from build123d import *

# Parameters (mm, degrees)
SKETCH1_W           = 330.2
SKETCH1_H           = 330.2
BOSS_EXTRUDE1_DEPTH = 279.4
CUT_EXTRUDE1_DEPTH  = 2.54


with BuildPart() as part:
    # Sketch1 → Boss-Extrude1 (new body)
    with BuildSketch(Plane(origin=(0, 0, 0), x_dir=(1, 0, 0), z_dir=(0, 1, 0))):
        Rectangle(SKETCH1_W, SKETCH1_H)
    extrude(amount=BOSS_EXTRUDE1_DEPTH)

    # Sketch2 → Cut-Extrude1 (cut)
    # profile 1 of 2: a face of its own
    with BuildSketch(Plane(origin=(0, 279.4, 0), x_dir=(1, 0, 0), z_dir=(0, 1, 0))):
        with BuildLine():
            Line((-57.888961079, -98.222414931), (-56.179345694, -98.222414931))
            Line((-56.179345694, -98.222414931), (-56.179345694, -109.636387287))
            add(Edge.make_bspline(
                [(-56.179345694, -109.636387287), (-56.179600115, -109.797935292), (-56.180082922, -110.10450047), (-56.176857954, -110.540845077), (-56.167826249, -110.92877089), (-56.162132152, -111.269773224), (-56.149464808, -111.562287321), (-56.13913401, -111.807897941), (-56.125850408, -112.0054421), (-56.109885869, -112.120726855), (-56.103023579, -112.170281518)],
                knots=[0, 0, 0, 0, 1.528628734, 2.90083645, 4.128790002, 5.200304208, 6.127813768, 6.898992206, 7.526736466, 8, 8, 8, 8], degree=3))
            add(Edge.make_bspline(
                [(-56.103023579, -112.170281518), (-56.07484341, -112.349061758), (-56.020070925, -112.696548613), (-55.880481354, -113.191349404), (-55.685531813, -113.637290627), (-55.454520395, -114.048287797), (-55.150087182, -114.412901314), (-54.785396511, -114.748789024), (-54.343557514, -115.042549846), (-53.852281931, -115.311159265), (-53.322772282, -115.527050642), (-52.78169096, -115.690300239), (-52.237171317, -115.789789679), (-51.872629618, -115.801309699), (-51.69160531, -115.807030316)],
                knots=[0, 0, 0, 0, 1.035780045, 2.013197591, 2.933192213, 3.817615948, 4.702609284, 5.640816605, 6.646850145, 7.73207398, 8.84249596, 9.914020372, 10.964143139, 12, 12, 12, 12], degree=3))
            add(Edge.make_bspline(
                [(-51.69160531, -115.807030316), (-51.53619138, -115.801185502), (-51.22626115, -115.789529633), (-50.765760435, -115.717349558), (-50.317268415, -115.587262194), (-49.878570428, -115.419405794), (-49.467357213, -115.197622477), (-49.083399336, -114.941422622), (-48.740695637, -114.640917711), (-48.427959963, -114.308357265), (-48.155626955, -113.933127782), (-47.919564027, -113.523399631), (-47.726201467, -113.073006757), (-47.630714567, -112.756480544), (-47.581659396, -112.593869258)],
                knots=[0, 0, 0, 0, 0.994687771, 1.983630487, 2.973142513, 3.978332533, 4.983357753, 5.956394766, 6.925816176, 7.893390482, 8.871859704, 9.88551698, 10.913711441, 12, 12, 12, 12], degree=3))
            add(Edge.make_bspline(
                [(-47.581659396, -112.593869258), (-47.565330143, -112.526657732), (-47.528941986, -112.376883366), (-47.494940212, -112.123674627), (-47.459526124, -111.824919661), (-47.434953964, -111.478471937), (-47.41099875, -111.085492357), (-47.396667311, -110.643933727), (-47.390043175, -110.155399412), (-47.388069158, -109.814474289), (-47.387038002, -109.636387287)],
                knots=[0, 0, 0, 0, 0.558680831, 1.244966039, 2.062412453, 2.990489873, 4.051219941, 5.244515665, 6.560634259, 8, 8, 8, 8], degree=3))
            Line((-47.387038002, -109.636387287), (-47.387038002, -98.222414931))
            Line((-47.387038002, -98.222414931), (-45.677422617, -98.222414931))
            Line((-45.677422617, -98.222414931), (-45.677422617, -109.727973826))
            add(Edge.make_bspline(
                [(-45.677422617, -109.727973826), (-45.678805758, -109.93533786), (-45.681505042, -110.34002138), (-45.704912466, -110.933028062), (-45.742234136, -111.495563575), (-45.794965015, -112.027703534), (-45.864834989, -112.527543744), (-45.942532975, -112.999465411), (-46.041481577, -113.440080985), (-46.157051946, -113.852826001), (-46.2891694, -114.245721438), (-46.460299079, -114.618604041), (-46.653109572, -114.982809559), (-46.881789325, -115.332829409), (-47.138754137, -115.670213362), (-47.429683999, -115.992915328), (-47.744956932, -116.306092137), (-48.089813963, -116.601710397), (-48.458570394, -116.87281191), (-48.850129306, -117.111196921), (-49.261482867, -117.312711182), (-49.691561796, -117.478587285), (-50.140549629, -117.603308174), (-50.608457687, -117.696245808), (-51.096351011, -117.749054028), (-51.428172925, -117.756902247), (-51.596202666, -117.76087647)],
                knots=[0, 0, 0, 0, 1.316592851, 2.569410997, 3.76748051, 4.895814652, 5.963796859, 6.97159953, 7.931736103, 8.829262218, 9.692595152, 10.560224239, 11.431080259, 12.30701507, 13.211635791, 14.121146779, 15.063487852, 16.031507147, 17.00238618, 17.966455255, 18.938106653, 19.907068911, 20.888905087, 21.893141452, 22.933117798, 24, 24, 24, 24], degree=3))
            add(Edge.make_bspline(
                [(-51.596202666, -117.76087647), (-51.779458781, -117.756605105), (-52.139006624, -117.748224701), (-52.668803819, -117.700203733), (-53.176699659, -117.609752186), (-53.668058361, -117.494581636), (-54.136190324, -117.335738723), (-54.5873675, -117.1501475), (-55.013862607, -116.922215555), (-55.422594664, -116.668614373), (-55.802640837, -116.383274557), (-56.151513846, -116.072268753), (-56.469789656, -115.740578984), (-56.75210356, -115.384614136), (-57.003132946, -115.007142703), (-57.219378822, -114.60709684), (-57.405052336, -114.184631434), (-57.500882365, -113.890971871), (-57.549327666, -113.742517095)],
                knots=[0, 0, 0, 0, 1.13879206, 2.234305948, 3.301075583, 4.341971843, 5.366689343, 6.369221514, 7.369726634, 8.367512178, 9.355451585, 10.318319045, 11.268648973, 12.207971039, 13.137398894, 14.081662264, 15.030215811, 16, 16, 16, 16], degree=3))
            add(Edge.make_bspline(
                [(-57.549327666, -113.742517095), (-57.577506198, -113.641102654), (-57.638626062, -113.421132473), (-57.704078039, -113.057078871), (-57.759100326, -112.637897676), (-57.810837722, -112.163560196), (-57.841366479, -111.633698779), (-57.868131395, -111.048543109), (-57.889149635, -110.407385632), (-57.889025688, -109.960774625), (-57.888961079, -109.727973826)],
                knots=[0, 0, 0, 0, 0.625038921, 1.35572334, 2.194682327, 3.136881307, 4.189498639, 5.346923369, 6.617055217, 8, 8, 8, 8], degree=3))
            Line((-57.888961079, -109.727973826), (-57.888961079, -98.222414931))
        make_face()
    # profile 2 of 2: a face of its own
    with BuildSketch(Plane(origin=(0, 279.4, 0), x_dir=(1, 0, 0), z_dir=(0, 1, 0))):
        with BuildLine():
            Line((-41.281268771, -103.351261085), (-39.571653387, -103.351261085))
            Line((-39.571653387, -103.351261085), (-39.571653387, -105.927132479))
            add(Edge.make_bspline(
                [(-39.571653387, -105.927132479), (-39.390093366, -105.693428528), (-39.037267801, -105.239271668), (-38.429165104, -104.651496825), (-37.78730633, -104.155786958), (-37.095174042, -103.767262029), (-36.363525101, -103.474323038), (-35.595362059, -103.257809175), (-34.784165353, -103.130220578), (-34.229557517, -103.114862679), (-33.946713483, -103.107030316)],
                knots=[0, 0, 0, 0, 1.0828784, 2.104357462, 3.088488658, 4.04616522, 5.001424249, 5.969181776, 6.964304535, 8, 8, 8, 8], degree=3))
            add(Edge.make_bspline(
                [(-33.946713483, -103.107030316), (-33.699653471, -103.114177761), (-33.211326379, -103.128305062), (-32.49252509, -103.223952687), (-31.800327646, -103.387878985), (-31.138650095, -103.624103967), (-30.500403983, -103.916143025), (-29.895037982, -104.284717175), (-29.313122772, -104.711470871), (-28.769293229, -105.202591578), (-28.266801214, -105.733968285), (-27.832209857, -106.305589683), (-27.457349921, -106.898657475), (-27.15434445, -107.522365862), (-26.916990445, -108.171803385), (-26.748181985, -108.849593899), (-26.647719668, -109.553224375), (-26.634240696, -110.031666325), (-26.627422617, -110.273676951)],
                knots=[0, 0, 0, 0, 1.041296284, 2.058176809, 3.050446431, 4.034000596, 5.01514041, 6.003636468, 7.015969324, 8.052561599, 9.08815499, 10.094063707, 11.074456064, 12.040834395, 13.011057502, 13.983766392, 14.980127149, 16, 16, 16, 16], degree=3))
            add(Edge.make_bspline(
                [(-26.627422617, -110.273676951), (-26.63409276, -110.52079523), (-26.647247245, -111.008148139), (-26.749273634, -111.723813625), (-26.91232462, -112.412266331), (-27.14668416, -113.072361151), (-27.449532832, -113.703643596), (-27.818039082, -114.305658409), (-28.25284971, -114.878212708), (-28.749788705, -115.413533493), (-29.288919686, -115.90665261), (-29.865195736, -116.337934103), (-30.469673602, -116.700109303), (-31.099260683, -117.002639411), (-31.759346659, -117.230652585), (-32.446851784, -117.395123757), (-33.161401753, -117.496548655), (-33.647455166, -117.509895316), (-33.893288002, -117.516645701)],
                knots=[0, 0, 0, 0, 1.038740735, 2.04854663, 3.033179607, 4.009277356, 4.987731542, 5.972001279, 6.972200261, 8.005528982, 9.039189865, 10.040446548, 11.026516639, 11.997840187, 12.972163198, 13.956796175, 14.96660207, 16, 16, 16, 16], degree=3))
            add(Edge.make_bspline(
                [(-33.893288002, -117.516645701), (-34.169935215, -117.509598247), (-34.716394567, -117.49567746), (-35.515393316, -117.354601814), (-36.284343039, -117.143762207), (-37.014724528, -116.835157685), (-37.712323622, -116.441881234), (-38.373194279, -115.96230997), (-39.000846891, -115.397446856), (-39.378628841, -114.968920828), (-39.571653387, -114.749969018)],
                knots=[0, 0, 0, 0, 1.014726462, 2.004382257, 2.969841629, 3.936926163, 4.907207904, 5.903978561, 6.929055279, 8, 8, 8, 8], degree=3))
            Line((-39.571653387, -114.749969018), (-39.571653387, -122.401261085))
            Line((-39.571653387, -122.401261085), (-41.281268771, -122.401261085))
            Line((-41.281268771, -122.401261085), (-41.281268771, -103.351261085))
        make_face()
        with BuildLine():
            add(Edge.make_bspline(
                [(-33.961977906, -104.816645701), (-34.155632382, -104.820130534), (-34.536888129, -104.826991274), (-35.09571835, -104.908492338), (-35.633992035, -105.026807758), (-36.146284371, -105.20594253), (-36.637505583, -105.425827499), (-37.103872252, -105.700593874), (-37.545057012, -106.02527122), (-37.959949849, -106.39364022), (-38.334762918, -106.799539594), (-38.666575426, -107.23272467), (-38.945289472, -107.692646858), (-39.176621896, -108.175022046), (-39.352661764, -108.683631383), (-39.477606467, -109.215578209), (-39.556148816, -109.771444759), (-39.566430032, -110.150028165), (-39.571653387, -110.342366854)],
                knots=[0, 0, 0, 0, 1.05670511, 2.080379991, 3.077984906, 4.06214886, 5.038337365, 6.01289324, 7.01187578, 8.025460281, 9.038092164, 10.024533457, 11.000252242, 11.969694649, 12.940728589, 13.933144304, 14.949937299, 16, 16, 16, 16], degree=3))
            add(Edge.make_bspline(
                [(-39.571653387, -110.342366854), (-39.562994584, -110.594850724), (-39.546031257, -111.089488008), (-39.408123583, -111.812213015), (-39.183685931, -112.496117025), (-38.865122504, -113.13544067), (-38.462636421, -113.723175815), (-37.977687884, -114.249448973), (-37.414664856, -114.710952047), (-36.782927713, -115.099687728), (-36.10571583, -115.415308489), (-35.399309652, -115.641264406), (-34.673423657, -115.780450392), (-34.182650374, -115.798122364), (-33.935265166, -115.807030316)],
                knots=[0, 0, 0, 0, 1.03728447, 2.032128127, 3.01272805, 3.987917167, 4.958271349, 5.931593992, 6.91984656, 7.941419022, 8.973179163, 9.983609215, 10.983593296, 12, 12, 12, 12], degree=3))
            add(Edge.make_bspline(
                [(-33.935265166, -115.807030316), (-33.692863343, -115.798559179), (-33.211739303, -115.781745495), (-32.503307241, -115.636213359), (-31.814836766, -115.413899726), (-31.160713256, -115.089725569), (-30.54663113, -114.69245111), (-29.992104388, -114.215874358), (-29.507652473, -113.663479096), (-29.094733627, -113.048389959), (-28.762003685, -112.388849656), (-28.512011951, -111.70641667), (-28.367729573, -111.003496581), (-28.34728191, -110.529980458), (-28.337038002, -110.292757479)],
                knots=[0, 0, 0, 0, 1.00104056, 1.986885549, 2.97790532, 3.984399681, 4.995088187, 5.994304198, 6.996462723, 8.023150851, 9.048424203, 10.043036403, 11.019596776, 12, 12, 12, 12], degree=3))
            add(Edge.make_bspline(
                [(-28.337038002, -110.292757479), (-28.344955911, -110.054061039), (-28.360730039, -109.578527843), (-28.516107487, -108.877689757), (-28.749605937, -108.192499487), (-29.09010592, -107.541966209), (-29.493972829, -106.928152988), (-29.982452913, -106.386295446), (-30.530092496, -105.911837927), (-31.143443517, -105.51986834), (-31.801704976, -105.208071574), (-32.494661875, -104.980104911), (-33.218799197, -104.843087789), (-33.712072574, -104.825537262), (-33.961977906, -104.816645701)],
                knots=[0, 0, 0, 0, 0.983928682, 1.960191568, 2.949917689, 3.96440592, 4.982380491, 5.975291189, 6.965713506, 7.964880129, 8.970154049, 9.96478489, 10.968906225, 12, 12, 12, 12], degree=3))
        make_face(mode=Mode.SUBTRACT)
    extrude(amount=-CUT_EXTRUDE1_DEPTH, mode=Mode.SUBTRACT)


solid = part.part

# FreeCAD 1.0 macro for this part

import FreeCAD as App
import Part
import Sketcher
from FreeCAD import Vector
Q = App.Units.Quantity

doc = App.newDocument("Part")
body = doc.addObject("PartDesign::Body", "Body")

# Sketch on XZ plane
sketch1 = doc.addObject("Sketcher::SketchObject", "Sketch")
body.addObject(sketch1)
sketch1.AttachmentSupport = (doc.XZ_Plane, [""])
sketch1.MapMode = "FlatFace"
sketch1.addGeometry([
    Part.LineSegment(Vector(-165.1, -165.1, 0), Vector(-165.1, 165.1, 0)),
    Part.LineSegment(Vector(-165.1, 165.1, 0), Vector(165.1, 165.1, 0)),
    Part.LineSegment(Vector(165.1, 165.1, 0), Vector(165.1, -165.1, 0)),
    Part.LineSegment(Vector(165.1, -165.1, 0), Vector(-165.1, -165.1, 0)),
], False)
sketch1.addConstraint([
    Sketcher.Constraint("Coincident", 0, 2, 1, 1),
    Sketcher.Constraint("Coincident", 1, 2, 2, 1),
    Sketcher.Constraint("Coincident", 2, 2, 3, 1),
    Sketcher.Constraint("Coincident", 3, 2, 0, 1),
    Sketcher.Constraint("Vertical", 0),
    Sketcher.Constraint("Horizontal", 1),
    Sketcher.Constraint("Vertical", 2),
    Sketcher.Constraint("Horizontal", 3),
    Sketcher.Constraint("Symmetric", 0, 2, 2, 2, -1, 1),
    Sketcher.Constraint("Equal", 3, 0),
    Sketcher.Constraint("DistanceX", 1, 1, 1, 2, Q("13 in")),
])
pad1 = doc.addObject("PartDesign::Pad", "Pad")
body.addObject(pad1)
pad1.Profile = sketch1
pad1.Length = Q("11 in")
pad1.Reversed = True

# Sketch on XZ plane
sketch2 = doc.addObject("Sketcher::SketchObject", "Sketch001")
body.addObject(sketch2)
sketch2.AttachmentSupport = (doc.XZ_Plane, [""])
sketch2.MapMode = "FlatFace"
sketch2.AttachmentOffset = App.Placement(Vector(0, 0, -11 * 25.4), App.Rotation())
sketch2.addGeometry([
    Part.LineSegment(Vector(-56.179346, 98.222415, 0), Vector(-57.888961, 98.222415, 0)),  # 0
    Part.LineSegment(Vector(-57.888961, 98.222415, 0), Vector(-57.888961, 109.727974, 0)),  # 1
    Part.BSplineCurve([Vector(-57.549328, 113.742517, 0), Vector(-57.577506, 113.641103, 0), Vector(-57.638626, 113.421132, 0), Vector(-57.704078, 113.057079, 0), Vector(-57.7591, 112.637898, 0), Vector(-57.810838, 112.16356, 0), Vector(-57.841366, 111.633699, 0), Vector(-57.868131, 111.048543, 0), Vector(-57.88915, 110.407386, 0), Vector(-57.889026, 109.960775, 0), Vector(-57.888961, 109.727974, 0)], [4, 1, 1, 1, 1, 1, 1, 1, 4], [0, 0.625038921, 1.35572334, 2.194682327, 3.136881307, 4.189498639, 5.346923369, 6.617055217, 8], False, 3, [1, 1, 1, 1, 1, 1, 1, 1, 1, 1, 1], False),  # 2
    Part.BSplineCurve([Vector(-51.596203, 117.760876, 0), Vector(-51.779459, 117.756605, 0), Vector(-52.139007, 117.748225, 0), Vector(-52.668804, 117.700204, 0), Vector(-53.1767, 117.609752, 0), Vector(-53.668058, 117.494582, 0), Vector(-54.13619, 117.335739, 0), Vector(-54.587367, 117.150148, 0), Vector(-55.013863, 116.922216, 0), Vector(-55.422595, 116.668614, 0), Vector(-55.802641, 116.383275, 0), Vector(-56.151514, 116.072269, 0), Vector(-56.46979, 115.740579, 0), Vector(-56.752104, 115.384614, 0), Vector(-57.003133, 115.007143, 0), Vector(-57.219379, 114.607097, 0), Vector(-57.405052, 114.184631, 0), Vector(-57.500882, 113.890972, 0), Vector(-57.549328, 113.742517, 0)], [4, 1, 1, 1, 1, 1, 1, 1, 1, 1, 1, 1, 1, 1, 1, 1, 4], [0, 1.13879206, 2.234305948, 3.301075583, 4.341971843, 5.366689343, 6.369221514, 7.369726634, 8.367512178, 9.355451585, 10.318319045, 11.268648973, 12.207971039, 13.137398894, 14.081662264, 15.030215811, 16], False, 3, [1, 1, 1, 1, 1, 1, 1, 1, 1, 1, 1, 1, 1, 1, 1, 1, 1, 1, 1], False),  # 3
    Part.BSplineCurve([Vector(-45.677423, 109.727974, 0), Vector(-45.678806, 109.935338, 0), Vector(-45.681505, 110.340021, 0), Vector(-45.704912, 110.933028, 0), Vector(-45.742234, 111.495564, 0), Vector(-45.794965, 112.027704, 0), Vector(-45.864835, 112.527544, 0), Vector(-45.942533, 112.999465, 0), Vector(-46.041482, 113.440081, 0), Vector(-46.157052, 113.852826, 0), Vector(-46.289169, 114.245721, 0), Vector(-46.460299, 114.618604, 0), Vector(-46.65311, 114.98281, 0), Vector(-46.881789, 115.332829, 0), Vector(-47.138754, 115.670213, 0), Vector(-47.429684, 115.992915, 0), Vector(-47.744957, 116.306092, 0), Vector(-48.089814, 116.60171, 0), Vector(-48.45857, 116.872812, 0), Vector(-48.850129, 117.111197, 0), Vector(-49.261483, 117.312711, 0), Vector(-49.691562, 117.478587, 0), Vector(-50.14055, 117.603308, 0), Vector(-50.608458, 117.696246, 0), Vector(-51.096351, 117.749054, 0), Vector(-51.428173, 117.756902, 0), Vector(-51.596203, 117.760876, 0)], [4, 1, 1, 1, 1, 1, 1, 1, 1, 1, 1, 1, 1, 1, 1, 1, 1, 1, 1, 1, 1, 1, 1, 1, 4], [0, 1.316592851, 2.569410997, 3.76748051, 4.895814652, 5.963796859, 6.97159953, 7.931736103, 8.829262218, 9.692595152, 10.560224239, 11.431080259, 12.30701507, 13.211635791, 14.121146779, 15.063487852, 16.031507147, 17.00238618, 17.966455255, 18.938106653, 19.907068911, 20.888905087, 21.893141452, 22.933117798, 24], False, 3, [1, 1, 1, 1, 1, 1, 1, 1, 1, 1, 1, 1, 1, 1, 1, 1, 1, 1, 1, 1, 1, 1, 1, 1, 1, 1, 1], False),  # 4
    Part.LineSegment(Vector(-45.677423, 109.727974, 0), Vector(-45.677423, 98.222415, 0)),  # 5
    Part.LineSegment(Vector(-45.677423, 98.222415, 0), Vector(-47.387038, 98.222415, 0)),  # 6
    Part.LineSegment(Vector(-47.387038, 98.222415, 0), Vector(-47.387038, 109.636387, 0)),  # 7
    Part.BSplineCurve([Vector(-47.581659, 112.593869, 0), Vector(-47.56533, 112.526658, 0), Vector(-47.528942, 112.376883, 0), Vector(-47.49494, 112.123675, 0), Vector(-47.459526, 111.82492, 0), Vector(-47.434954, 111.478472, 0), Vector(-47.410999, 111.085492, 0), Vector(-47.396667, 110.643934, 0), Vector(-47.390043, 110.155399, 0), Vector(-47.388069, 109.814474, 0), Vector(-47.387038, 109.636387, 0)], [4, 1, 1, 1, 1, 1, 1, 1, 4], [0, 0.558680831, 1.244966039, 2.062412453, 2.990489873, 4.051219941, 5.244515665, 6.560634259, 8], False, 3, [1, 1, 1, 1, 1, 1, 1, 1, 1, 1, 1], False),  # 8
    Part.BSplineCurve([Vector(-51.691605, 115.80703, 0), Vector(-51.536191, 115.801186, 0), Vector(-51.226261, 115.78953, 0), Vector(-50.76576, 115.71735, 0), Vector(-50.317268, 115.587262, 0), Vector(-49.87857, 115.419406, 0), Vector(-49.467357, 115.197622, 0), Vector(-49.083399, 114.941423, 0), Vector(-48.740696, 114.640918, 0), Vector(-48.42796, 114.308357, 0), Vector(-48.155627, 113.933128, 0), Vector(-47.919564, 113.5234, 0), Vector(-47.726201, 113.073007, 0), Vector(-47.630715, 112.756481, 0), Vector(-47.581659, 112.593869, 0)], [4, 1, 1, 1, 1, 1, 1, 1, 1, 1, 1, 1, 4], [0, 0.994687771, 1.983630487, 2.973142513, 3.978332533, 4.983357753, 5.956394766, 6.925816176, 7.893390482, 8.871859704, 9.88551698, 10.913711441, 12], False, 3, [1, 1, 1, 1, 1, 1, 1, 1, 1, 1, 1, 1, 1, 1, 1], False),  # 9
    Part.BSplineCurve([Vector(-56.103024, 112.170282, 0), Vector(-56.074843, 112.349062, 0), Vector(-56.020071, 112.696549, 0), Vector(-55.880481, 113.191349, 0), Vector(-55.685532, 113.637291, 0), Vector(-55.45452, 114.048288, 0), Vector(-55.150087, 114.412901, 0), Vector(-54.785397, 114.748789, 0), Vector(-54.343558, 115.04255, 0), Vector(-53.852282, 115.311159, 0), Vector(-53.322772, 115.527051, 0), Vector(-52.781691, 115.6903, 0), Vector(-52.237171, 115.78979, 0), Vector(-51.87263, 115.80131, 0), Vector(-51.691605, 115.80703, 0)], [4, 1, 1, 1, 1, 1, 1, 1, 1, 1, 1, 1, 4], [0, 1.035780045, 2.013197591, 2.933192213, 3.817615948, 4.702609284, 5.640816605, 6.646850145, 7.73207398, 8.84249596, 9.914020372, 10.964143139, 12], False, 3, [1, 1, 1, 1, 1, 1, 1, 1, 1, 1, 1, 1, 1, 1, 1], False),  # 10
    Part.BSplineCurve([Vector(-56.179346, 109.636387, 0), Vector(-56.1796, 109.797935, 0), Vector(-56.180083, 110.1045, 0), Vector(-56.176858, 110.540845, 0), Vector(-56.167826, 110.928771, 0), Vector(-56.162132, 111.269773, 0), Vector(-56.149465, 111.562287, 0), Vector(-56.139134, 111.807898, 0), Vector(-56.12585, 112.005442, 0), Vector(-56.109886, 112.120727, 0), Vector(-56.103024, 112.170282, 0)], [4, 1, 1, 1, 1, 1, 1, 1, 4], [0, 1.528628734, 2.90083645, 4.128790002, 5.200304208, 6.127813768, 6.898992206, 7.526736466, 8], False, 3, [1, 1, 1, 1, 1, 1, 1, 1, 1, 1, 1], False),  # 11
    Part.LineSegment(Vector(-56.179346, 109.636387, 0), Vector(-56.179346, 98.222415, 0)),  # 12
    Part.LineSegment(Vector(-39.571653, 103.351261, 0), Vector(-41.281269, 103.351261, 0)),  # 13
    Part.LineSegment(Vector(-41.281269, 103.351261, 0), Vector(-41.281269, 122.401261, 0)),  # 14
    Part.LineSegment(Vector(-41.281269, 122.401261, 0), Vector(-39.571653, 122.401261, 0)),  # 15
    Part.LineSegment(Vector(-39.571653, 122.401261, 0), Vector(-39.571653, 114.749969, 0)),  # 16
    Part.BSplineCurve([Vector(-33.893288, 117.516646, 0), Vector(-34.169935, 117.509598, 0), Vector(-34.716395, 117.495677, 0), Vector(-35.515393, 117.354602, 0), Vector(-36.284343, 117.143762, 0), Vector(-37.014725, 116.835158, 0), Vector(-37.712324, 116.441881, 0), Vector(-38.373194, 115.96231, 0), Vector(-39.000847, 115.397447, 0), Vector(-39.378629, 114.968921, 0), Vector(-39.571653, 114.749969, 0)], [4, 1, 1, 1, 1, 1, 1, 1, 4], [0, 1.014726462, 2.004382257, 2.969841629, 3.936926163, 4.907207904, 5.903978561, 6.929055279, 8], False, 3, [1, 1, 1, 1, 1, 1, 1, 1, 1, 1, 1], False),  # 17
    Part.BSplineCurve([Vector(-26.627423, 110.273677, 0), Vector(-26.634093, 110.520795, 0), Vector(-26.647247, 111.008148, 0), Vector(-26.749274, 111.723814, 0), Vector(-26.912325, 112.412266, 0), Vector(-27.146684, 113.072361, 0), Vector(-27.449533, 113.703644, 0), Vector(-27.818039, 114.305658, 0), Vector(-28.25285, 114.878213, 0), Vector(-28.749789, 115.413533, 0), Vector(-29.28892, 115.906653, 0), Vector(-29.865196, 116.337934, 0), Vector(-30.469674, 116.700109, 0), Vector(-31.099261, 117.002639, 0), Vector(-31.759347, 117.230653, 0), Vector(-32.446852, 117.395124, 0), Vector(-33.161402, 117.496549, 0), Vector(-33.647455, 117.509895, 0), Vector(-33.893288, 117.516646, 0)], [4, 1, 1, 1, 1, 1, 1, 1, 1, 1, 1, 1, 1, 1, 1, 1, 4], [0, 1.038740735, 2.04854663, 3.033179607, 4.009277356, 4.987731542, 5.972001279, 6.972200261, 8.005528982, 9.039189865, 10.040446548, 11.026516639, 11.997840187, 12.972163198, 13.956796175, 14.96660207, 16], False, 3, [1, 1, 1, 1, 1, 1, 1, 1, 1, 1, 1, 1, 1, 1, 1, 1, 1, 1, 1], False),  # 18
    Part.BSplineCurve([Vector(-33.946713, 103.10703, 0), Vector(-33.699653, 103.114178, 0), Vector(-33.211326, 103.128305, 0), Vector(-32.492525, 103.223953, 0), Vector(-31.800328, 103.387879, 0), Vector(-31.13865, 103.624104, 0), Vector(-30.500404, 103.916143, 0), Vector(-29.895038, 104.284717, 0), Vector(-29.313123, 104.711471, 0), Vector(-28.769293, 105.202592, 0), Vector(-28.266801, 105.733968, 0), Vector(-27.83221, 106.30559, 0), Vector(-27.45735, 106.898657, 0), Vector(-27.154344, 107.522366, 0), Vector(-26.91699, 108.171803, 0), Vector(-26.748182, 108.849594, 0), Vector(-26.64772, 109.553224, 0), Vector(-26.634241, 110.031666, 0), Vector(-26.627423, 110.273677, 0)], [4, 1, 1, 1, 1, 1, 1, 1, 1, 1, 1, 1, 1, 1, 1, 1, 4], [0, 1.041296284, 2.058176809, 3.050446431, 4.034000596, 5.01514041, 6.003636468, 7.015969324, 8.052561599, 9.08815499, 10.094063707, 11.074456064, 12.040834395, 13.011057502, 13.983766392, 14.980127149, 16], False, 3, [1, 1, 1, 1, 1, 1, 1, 1, 1, 1, 1, 1, 1, 1, 1, 1, 1, 1, 1], False),  # 19
    Part.BSplineCurve([Vector(-39.571653, 105.927132, 0), Vector(-39.390093, 105.693429, 0), Vector(-39.037268, 105.239272, 0), Vector(-38.429165, 104.651497, 0), Vector(-37.787306, 104.155787, 0), Vector(-37.095174, 103.767262, 0), Vector(-36.363525, 103.474323, 0), Vector(-35.595362, 103.257809, 0), Vector(-34.784165, 103.130221, 0), Vector(-34.229558, 103.114863, 0), Vector(-33.946713, 103.10703, 0)], [4, 1, 1, 1, 1, 1, 1, 1, 4], [0, 1.0828784, 2.104357462, 3.088488658, 4.04616522, 5.001424249, 5.969181776, 6.964304535, 8], False, 3, [1, 1, 1, 1, 1, 1, 1, 1, 1, 1, 1], False),  # 20
    Part.LineSegment(Vector(-39.571653, 105.927132, 0), Vector(-39.571653, 103.351261, 0)),  # 21
    Part.BSplineCurve([Vector(-28.337038, 110.292757, 0), Vector(-28.344956, 110.054061, 0), Vector(-28.36073, 109.578528, 0), Vector(-28.516107, 108.87769, 0), Vector(-28.749606, 108.192499, 0), Vector(-29.090106, 107.541966, 0), Vector(-29.493973, 106.928153, 0), Vector(-29.982453, 106.386295, 0), Vector(-30.530092, 105.911838, 0), Vector(-31.143444, 105.519868, 0), Vector(-31.801705, 105.208072, 0), Vector(-32.494662, 104.980105, 0), Vector(-33.218799, 104.843088, 0), Vector(-33.712073, 104.825537, 0), Vector(-33.961978, 104.816646, 0)], [4, 1, 1, 1, 1, 1, 1, 1, 1, 1, 1, 1, 4], [0, 0.983928682, 1.960191568, 2.949917689, 3.96440592, 4.982380491, 5.975291189, 6.965713506, 7.964880129, 8.970154049, 9.96478489, 10.968906225, 12], False, 3, [1, 1, 1, 1, 1, 1, 1, 1, 1, 1, 1, 1, 1, 1, 1], False),  # 22
    Part.BSplineCurve([Vector(-33.935265, 115.80703, 0), Vector(-33.692863, 115.798559, 0), Vector(-33.211739, 115.781745, 0), Vector(-32.503307, 115.636213, 0), Vector(-31.814837, 115.4139, 0), Vector(-31.160713, 115.089726, 0), Vector(-30.546631, 114.692451, 0), Vector(-29.992104, 114.215874, 0), Vector(-29.507652, 113.663479, 0), Vector(-29.094734, 113.04839, 0), Vector(-28.762004, 112.38885, 0), Vector(-28.512012, 111.706417, 0), Vector(-28.36773, 111.003497, 0), Vector(-28.347282, 110.52998, 0), Vector(-28.337038, 110.292757, 0)], [4, 1, 1, 1, 1, 1, 1, 1, 1, 1, 1, 1, 4], [0, 1.00104056, 1.986885549, 2.97790532, 3.984399681, 4.995088187, 5.994304198, 6.996462723, 8.023150851, 9.048424203, 10.043036403, 11.019596776, 12], False, 3, [1, 1, 1, 1, 1, 1, 1, 1, 1, 1, 1, 1, 1, 1, 1], False),  # 23
    Part.BSplineCurve([Vector(-39.571653, 110.342367, 0), Vector(-39.562995, 110.594851, 0), Vector(-39.546031, 111.089488, 0), Vector(-39.408124, 111.812213, 0), Vector(-39.183686, 112.496117, 0), Vector(-38.865123, 113.135441, 0), Vector(-38.462636, 113.723176, 0), Vector(-37.977688, 114.249449, 0), Vector(-37.414665, 114.710952, 0), Vector(-36.782928, 115.099688, 0), Vector(-36.105716, 115.415308, 0), Vector(-35.39931, 115.641264, 0), Vector(-34.673424, 115.78045, 0), Vector(-34.18265, 115.798122, 0), Vector(-33.935265, 115.80703, 0)], [4, 1, 1, 1, 1, 1, 1, 1, 1, 1, 1, 1, 4], [0, 1.03728447, 2.032128127, 3.01272805, 3.987917167, 4.958271349, 5.931593992, 6.91984656, 7.941419022, 8.973179163, 9.983609215, 10.983593296, 12], False, 3, [1, 1, 1, 1, 1, 1, 1, 1, 1, 1, 1, 1, 1, 1, 1], False),  # 24
    Part.BSplineCurve([Vector(-33.961978, 104.816646, 0), Vector(-34.155632, 104.820131, 0), Vector(-34.536888, 104.826991, 0), Vector(-35.095718, 104.908492, 0), Vector(-35.633992, 105.026808, 0), Vector(-36.146284, 105.205943, 0), Vector(-36.637506, 105.425827, 0), Vector(-37.103872, 105.700594, 0), Vector(-37.545057, 106.025271, 0), Vector(-37.95995, 106.39364, 0), Vector(-38.334763, 106.79954, 0), Vector(-38.666575, 107.232725, 0), Vector(-38.945289, 107.692647, 0), Vector(-39.176622, 108.175022, 0), Vector(-39.352662, 108.683631, 0), Vector(-39.477606, 109.215578, 0), Vector(-39.556149, 109.771445, 0), Vector(-39.56643, 110.150028, 0), Vector(-39.571653, 110.342367, 0)], [4, 1, 1, 1, 1, 1, 1, 1, 1, 1, 1, 1, 1, 1, 1, 1, 4], [0, 1.05670511, 2.080379991, 3.077984906, 4.06214886, 5.038337365, 6.01289324, 7.01187578, 8.025460281, 9.038092164, 10.024533457, 11.000252242, 11.969694649, 12.940728589, 13.933144304, 14.949937299, 16], False, 3, [1, 1, 1, 1, 1, 1, 1, 1, 1, 1, 1, 1, 1, 1, 1, 1, 1, 1, 1], False),  # 25
], False)
sketch2.addConstraint([
    Sketcher.Constraint("Block", 2),
    Sketcher.Constraint("Block", 3),
    Sketcher.Constraint("Block", 4),
    Sketcher.Constraint("Block", 8),
    Sketcher.Constraint("Block", 9),
    Sketcher.Constraint("Block", 10),
    Sketcher.Constraint("Block", 11),
    Sketcher.Constraint("Block", 17),
    Sketcher.Constraint("Block", 18),
    Sketcher.Constraint("Block", 19),
    Sketcher.Constraint("Block", 20),
    Sketcher.Constraint("Block", 22),
    Sketcher.Constraint("Block", 23),
    Sketcher.Constraint("Block", 24),
    Sketcher.Constraint("Block", 25),
    Sketcher.Constraint("Coincident", 0, 2, 1, 1),
    Sketcher.Constraint("Coincident", 1, 2, 2, 2),
    Sketcher.Constraint("Coincident", 4, 1, 5, 1),
    Sketcher.Constraint("Coincident", 5, 2, 6, 1),
    Sketcher.Constraint("Coincident", 6, 2, 7, 1),
    Sketcher.Constraint("Coincident", 7, 2, 8, 2),
    Sketcher.Constraint("Coincident", 11, 1, 12, 1),
    Sketcher.Constraint("Coincident", 12, 2, 0, 1),
    Sketcher.Constraint("Coincident", 13, 2, 14, 1),
    Sketcher.Constraint("Coincident", 14, 2, 15, 1),
    Sketcher.Constraint("Coincident", 15, 2, 16, 1),
    Sketcher.Constraint("Coincident", 16, 2, 17, 2),
    Sketcher.Constraint("Coincident", 20, 1, 21, 1),
    Sketcher.Constraint("Coincident", 21, 2, 13, 1),
    Sketcher.Constraint("Horizontal", 0),
    Sketcher.Constraint("Vertical", 1),
    Sketcher.Constraint("Vertical", 5),
    Sketcher.Constraint("Horizontal", 6),
    Sketcher.Constraint("Vertical", 7),
    Sketcher.Constraint("Vertical", 12),
    Sketcher.Constraint("Horizontal", 13),
    Sketcher.Constraint("Vertical", 14),
    Sketcher.Constraint("Horizontal", 15),
    Sketcher.Constraint("Vertical", 16),
    Sketcher.Constraint("Vertical", 21),
    Sketcher.Constraint("DistanceY", 14, 1, 14, 2, Q("0.75 in")),
    Sketcher.Constraint("DistanceY", 1, 1, 1, 2, Q("11.505559 mm")),
    Sketcher.Constraint("DistanceY", 5, 2, 5, 1, Q("11.505559 mm")),
    Sketcher.Constraint("DistanceY", 21, 2, 21, 1, Q("2.575871 mm")),
    Sketcher.Constraint("DistanceX", 13, 2, 13, 1, Q("1.709615 mm")),
])
pocket1 = doc.addObject("PartDesign::Pocket", "Pocket")
body.addObject(pocket1)
pocket1.Profile = sketch2
pocket1.Length = Q("0.1 in")
pocket1.Reversed = True

doc.recompute()
